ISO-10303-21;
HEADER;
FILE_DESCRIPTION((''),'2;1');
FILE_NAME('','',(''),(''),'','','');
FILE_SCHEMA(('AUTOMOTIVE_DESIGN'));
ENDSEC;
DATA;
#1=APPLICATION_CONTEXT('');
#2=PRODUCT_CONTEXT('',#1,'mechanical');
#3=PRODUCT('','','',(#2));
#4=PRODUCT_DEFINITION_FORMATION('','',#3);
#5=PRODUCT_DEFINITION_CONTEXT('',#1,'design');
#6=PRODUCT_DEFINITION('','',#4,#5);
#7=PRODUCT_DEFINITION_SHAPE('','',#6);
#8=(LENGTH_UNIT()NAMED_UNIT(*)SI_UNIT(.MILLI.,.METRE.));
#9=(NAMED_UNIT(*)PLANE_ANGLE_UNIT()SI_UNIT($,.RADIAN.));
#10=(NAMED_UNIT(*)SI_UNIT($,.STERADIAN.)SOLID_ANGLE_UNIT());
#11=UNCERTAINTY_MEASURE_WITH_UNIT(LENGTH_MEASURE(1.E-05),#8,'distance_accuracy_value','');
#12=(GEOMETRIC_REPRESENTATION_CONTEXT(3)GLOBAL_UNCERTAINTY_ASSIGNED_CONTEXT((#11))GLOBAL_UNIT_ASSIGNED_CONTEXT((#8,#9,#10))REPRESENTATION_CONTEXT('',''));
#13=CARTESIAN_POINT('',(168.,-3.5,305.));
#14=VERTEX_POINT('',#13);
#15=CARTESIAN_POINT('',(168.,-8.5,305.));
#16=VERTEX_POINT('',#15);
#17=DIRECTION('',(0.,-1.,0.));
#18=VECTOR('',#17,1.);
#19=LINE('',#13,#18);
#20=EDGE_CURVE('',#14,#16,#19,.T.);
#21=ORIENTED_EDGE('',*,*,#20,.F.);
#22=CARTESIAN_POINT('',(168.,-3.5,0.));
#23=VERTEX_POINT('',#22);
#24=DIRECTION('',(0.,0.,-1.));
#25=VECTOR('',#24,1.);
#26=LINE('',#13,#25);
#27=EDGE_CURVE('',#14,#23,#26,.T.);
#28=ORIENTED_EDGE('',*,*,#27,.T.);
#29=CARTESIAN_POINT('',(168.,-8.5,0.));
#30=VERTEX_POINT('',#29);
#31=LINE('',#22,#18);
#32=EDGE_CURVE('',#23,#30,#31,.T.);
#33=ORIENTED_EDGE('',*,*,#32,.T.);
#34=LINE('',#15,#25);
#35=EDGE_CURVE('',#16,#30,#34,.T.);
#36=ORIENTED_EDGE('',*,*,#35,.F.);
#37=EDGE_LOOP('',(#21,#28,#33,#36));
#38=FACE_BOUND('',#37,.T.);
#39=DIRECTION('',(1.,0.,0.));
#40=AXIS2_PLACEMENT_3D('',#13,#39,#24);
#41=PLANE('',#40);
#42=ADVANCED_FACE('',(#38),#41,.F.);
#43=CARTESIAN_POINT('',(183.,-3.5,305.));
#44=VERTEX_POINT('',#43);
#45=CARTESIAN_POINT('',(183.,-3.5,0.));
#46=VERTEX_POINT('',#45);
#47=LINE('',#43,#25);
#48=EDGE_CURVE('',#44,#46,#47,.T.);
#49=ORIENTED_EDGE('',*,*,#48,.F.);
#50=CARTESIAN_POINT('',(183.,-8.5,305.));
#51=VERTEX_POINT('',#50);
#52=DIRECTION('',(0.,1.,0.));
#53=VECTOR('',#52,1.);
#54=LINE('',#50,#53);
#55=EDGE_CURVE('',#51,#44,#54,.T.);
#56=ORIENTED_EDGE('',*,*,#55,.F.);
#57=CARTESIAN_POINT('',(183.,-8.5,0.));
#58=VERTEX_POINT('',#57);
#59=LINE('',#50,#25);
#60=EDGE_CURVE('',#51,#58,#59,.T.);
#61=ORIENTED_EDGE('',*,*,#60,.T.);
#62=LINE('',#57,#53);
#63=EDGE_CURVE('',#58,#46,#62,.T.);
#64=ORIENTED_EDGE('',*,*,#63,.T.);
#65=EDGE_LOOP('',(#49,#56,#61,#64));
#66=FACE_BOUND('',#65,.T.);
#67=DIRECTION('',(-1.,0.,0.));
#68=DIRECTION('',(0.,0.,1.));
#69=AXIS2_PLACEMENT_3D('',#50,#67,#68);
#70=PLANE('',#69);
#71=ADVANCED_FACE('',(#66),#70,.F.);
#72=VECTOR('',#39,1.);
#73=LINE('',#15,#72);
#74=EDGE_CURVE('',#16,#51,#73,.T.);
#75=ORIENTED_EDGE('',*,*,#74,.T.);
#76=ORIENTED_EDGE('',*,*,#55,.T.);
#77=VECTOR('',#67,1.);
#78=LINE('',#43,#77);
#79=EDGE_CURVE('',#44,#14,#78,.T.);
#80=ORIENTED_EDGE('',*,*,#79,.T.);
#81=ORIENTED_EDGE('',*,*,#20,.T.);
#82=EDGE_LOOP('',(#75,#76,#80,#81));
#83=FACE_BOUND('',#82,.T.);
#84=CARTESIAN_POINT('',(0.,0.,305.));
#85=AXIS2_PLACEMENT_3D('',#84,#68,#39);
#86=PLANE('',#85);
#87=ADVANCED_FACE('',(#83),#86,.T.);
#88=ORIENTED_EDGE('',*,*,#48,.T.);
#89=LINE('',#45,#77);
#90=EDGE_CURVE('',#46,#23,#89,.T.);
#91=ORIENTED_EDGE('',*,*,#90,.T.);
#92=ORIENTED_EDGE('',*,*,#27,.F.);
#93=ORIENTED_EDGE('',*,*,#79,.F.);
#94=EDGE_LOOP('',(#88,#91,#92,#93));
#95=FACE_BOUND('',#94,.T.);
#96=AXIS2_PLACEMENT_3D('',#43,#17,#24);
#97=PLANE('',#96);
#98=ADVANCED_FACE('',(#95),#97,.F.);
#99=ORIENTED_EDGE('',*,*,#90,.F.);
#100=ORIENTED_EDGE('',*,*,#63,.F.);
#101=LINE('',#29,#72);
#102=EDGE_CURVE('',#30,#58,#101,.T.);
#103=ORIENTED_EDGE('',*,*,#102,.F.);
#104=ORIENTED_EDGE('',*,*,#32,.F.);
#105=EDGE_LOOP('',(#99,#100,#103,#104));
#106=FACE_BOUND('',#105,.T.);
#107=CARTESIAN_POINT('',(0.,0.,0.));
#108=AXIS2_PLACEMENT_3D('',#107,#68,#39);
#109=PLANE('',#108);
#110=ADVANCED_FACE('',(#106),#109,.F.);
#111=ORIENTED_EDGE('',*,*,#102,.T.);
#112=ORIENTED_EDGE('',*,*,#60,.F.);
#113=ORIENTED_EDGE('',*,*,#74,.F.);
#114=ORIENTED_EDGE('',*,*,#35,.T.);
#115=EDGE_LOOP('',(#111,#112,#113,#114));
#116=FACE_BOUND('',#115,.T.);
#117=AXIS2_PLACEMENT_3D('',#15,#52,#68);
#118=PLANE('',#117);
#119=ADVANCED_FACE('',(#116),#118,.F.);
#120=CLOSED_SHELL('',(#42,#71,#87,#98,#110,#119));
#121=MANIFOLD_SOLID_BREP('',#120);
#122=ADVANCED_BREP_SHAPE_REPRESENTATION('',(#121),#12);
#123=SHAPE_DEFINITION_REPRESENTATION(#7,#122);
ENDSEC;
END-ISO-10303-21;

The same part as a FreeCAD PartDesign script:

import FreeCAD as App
import Part
import Sketcher

V = App.Vector
Q = App.Units.Quantity


def add_polygon(sketch, points):
    """Adds a closed chain of lines whose ends are joined by coincident constraints."""
    first, n = sketch.GeometryCount, len(points)
    for a, b in zip(points, points[1:] + points[:1]):
        sketch.addGeometry(Part.LineSegment(App.Vector(*a, 0), App.Vector(*b, 0)), False)
    for i in range(n):
        sketch.addConstraint(Sketcher.Constraint("Coincident", first + i, 2, first + (i + 1) % n, 1))

doc = App.newDocument("Part")
body = doc.addObject("PartDesign::Body", "Body")

# Sketch on XY plane
sketch1 = doc.addObject("Sketcher::SketchObject", "Sketch")
body.addObject(sketch1)
sketch1.AttachmentSupport = (doc.XY_Plane, [""])
sketch1.MapMode = "FlatFace"
add_polygon(sketch1, [(168, -4), (168, -8), (183, -8), (183, -4)])  # lines 0-3
sketch1.addConstraint([
    Sketcher.Constraint("Vertical", 0),
    Sketcher.Constraint("Horizontal", 1),
    Sketcher.Constraint("Vertical", 2),
    Sketcher.Constraint("Horizontal", 3),
    Sketcher.Constraint("DistanceX", 1, 1, 1, 2, Q("15 mm")),
    Sketcher.Constraint("DistanceY", 0, 2, 0, 1, Q("5 mm")),
    Sketcher.Constraint("DistanceX", -1, 1, 0, 2, Q("168 mm")),
    Sketcher.Constraint("DistanceY", 0, 2, -1, 1, Q("8.5 mm")),
])
pad1 = doc.addObject("PartDesign::Pad", "Pad")
body.addObject(pad1)
pad1.Profile = sketch1
pad1.Length = 305

doc.recompute()
